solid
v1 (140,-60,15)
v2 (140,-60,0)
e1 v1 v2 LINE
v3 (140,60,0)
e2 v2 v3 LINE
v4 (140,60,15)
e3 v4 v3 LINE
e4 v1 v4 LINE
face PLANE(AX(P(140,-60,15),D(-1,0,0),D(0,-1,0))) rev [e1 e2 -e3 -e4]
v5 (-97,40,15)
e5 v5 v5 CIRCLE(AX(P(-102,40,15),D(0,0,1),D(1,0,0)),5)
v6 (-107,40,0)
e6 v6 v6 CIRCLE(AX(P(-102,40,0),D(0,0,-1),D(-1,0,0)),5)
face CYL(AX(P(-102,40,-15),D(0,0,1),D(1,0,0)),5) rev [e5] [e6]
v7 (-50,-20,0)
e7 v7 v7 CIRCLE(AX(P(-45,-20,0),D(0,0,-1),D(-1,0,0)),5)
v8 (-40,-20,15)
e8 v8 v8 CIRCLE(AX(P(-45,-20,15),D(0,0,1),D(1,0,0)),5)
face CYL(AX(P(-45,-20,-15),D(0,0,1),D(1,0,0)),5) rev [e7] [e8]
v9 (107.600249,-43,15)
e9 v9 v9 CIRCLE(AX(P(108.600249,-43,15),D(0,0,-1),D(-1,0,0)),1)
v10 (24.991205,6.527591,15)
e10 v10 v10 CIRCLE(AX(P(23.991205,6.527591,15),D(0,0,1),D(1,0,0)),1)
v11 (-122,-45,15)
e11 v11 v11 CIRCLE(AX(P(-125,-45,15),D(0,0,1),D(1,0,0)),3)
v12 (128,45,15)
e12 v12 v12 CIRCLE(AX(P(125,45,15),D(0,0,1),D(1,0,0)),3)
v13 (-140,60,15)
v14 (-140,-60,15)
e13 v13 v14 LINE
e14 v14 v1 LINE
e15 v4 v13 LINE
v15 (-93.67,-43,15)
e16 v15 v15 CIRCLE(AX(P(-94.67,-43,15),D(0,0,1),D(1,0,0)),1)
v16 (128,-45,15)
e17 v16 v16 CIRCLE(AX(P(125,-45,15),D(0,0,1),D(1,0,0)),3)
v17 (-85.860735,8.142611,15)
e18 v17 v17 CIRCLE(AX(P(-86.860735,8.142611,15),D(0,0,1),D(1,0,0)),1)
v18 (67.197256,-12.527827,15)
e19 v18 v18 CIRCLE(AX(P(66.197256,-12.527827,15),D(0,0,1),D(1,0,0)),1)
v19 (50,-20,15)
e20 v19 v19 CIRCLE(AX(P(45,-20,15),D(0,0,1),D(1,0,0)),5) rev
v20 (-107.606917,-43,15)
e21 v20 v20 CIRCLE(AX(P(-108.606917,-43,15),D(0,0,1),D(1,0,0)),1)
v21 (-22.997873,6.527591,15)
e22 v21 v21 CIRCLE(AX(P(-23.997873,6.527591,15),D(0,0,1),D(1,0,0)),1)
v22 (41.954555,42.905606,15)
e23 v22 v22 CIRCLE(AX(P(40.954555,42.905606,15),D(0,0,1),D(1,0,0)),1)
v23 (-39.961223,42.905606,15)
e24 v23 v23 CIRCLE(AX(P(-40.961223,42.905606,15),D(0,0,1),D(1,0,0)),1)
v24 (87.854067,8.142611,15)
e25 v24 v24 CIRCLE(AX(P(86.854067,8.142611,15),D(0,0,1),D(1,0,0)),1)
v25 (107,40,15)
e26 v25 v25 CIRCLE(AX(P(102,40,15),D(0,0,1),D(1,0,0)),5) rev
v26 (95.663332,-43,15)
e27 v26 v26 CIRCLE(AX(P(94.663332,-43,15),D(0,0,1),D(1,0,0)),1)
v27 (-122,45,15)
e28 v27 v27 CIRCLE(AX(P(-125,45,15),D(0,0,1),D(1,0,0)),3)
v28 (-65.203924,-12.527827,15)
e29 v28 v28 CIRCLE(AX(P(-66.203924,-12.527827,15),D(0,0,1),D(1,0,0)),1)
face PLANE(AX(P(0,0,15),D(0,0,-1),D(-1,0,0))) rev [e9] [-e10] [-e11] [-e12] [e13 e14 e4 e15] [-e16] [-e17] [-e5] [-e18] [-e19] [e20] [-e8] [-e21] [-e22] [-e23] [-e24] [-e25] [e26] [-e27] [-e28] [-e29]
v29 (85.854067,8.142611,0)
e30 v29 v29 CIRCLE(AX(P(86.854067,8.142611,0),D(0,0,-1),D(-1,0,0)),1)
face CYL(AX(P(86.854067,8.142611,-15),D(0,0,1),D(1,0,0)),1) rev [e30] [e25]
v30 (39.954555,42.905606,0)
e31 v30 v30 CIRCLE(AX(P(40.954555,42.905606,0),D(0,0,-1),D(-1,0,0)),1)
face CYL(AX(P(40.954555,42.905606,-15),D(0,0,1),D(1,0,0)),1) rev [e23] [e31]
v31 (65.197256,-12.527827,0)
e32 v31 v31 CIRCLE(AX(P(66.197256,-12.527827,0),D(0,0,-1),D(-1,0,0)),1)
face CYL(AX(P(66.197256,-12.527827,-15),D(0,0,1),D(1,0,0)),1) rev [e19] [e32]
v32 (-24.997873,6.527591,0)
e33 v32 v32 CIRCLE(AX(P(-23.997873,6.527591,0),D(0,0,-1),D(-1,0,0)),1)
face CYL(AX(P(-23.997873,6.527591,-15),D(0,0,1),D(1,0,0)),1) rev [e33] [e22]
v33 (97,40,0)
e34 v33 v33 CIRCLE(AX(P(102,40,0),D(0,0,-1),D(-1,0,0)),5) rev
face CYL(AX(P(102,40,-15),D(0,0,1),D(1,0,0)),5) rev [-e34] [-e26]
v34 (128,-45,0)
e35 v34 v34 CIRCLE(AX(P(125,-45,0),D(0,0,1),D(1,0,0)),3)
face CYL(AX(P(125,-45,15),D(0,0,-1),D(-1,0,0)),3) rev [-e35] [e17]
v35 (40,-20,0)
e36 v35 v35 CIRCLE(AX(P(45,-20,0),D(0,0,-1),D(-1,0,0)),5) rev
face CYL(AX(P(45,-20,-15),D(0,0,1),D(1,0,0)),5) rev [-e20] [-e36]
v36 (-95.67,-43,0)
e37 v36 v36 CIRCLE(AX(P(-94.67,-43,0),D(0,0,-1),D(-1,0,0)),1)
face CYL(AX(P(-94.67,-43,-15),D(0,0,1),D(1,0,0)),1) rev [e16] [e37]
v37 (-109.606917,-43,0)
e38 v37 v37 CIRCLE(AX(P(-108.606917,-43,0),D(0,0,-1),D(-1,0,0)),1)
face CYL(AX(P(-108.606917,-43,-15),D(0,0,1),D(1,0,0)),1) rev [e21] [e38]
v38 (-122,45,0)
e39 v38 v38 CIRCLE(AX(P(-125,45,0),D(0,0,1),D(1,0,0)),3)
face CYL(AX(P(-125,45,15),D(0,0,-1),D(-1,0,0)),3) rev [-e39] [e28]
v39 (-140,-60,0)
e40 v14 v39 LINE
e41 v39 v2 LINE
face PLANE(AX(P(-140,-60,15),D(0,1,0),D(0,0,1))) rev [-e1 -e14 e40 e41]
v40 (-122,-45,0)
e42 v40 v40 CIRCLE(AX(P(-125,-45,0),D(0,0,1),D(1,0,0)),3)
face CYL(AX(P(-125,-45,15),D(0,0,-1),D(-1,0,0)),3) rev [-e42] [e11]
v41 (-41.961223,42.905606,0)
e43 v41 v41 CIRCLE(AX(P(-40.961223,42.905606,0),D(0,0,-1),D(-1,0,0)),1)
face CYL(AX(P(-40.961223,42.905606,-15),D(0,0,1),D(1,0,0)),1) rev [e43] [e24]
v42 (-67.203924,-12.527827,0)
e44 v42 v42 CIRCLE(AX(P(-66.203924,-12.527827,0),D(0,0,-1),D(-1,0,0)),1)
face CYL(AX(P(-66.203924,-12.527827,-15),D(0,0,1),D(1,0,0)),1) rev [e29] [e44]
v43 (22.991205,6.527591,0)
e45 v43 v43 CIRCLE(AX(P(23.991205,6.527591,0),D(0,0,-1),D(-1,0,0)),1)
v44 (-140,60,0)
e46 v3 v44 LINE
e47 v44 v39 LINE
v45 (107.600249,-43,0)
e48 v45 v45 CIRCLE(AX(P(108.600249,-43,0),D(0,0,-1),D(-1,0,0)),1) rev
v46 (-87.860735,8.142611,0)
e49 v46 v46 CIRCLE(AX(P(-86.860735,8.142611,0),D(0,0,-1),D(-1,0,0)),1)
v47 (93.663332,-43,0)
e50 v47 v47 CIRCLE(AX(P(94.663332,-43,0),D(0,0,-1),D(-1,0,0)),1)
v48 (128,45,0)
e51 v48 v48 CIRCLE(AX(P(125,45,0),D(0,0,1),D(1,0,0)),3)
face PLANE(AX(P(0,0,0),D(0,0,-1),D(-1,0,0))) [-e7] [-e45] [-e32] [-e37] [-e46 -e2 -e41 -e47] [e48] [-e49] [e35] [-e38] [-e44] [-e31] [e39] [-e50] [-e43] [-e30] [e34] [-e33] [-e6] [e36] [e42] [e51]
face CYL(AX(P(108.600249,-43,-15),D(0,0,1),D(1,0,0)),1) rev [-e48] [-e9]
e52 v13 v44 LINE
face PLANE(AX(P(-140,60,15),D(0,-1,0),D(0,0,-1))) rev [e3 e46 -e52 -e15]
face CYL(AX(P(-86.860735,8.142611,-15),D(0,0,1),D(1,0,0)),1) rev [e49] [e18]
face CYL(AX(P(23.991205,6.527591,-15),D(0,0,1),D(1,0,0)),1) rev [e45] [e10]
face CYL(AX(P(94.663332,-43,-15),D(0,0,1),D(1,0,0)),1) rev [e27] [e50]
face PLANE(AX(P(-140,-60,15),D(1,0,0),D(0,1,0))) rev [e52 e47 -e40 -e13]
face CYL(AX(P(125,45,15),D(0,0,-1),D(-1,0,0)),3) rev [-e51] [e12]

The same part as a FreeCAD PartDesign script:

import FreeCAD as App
import Part
import Sketcher
from FreeCAD import Vector
Q = App.Units.Quantity

doc = App.newDocument("Part")
body = doc.addObject("PartDesign::Body", "Body")

sketch1 = doc.addObject("Sketcher::SketchObject", "Sketch")
body.addObject(sketch1)
sketch1.AttachmentSupport = (doc.XY_Plane, [""])
sketch1.MapMode = "FlatFace"
sketch1.addGeometry([
    Part.LineSegment(Vector(-140, 60, 0), Vector(-140, -60, 0)),
    Part.LineSegment(Vector(-140, -60, 0), Vector(140, -60, 0)),
    Part.LineSegment(Vector(140, -60, 0), Vector(140, 60, 0)),
    Part.LineSegment(Vector(140, 60, 0), Vector(-140, 60, 0)),
    Part.Circle(Vector(-125, -45, 0), Vector(0, 0, 1), 3),
    Part.Circle(Vector(125, -45, 0), Vector(0, 0, 1), 3),
    Part.Circle(Vector(-125, 45, 0), Vector(0, 0, 1), 3),
    Part.Circle(Vector(125, 45, 0), Vector(0, 0, 1), 3),
], False)
sketch1.addConstraint([
    Sketcher.Constraint("Coincident", 0, 2, 1, 1),
    Sketcher.Constraint("Coincident", 1, 2, 2, 1),
    Sketcher.Constraint("Coincident", 2, 2, 3, 1),
    Sketcher.Constraint("Coincident", 3, 2, 0, 1),
    Sketcher.Constraint("Vertical", 0),
    Sketcher.Constraint("Horizontal", 1),
    Sketcher.Constraint("Vertical", 2),
    Sketcher.Constraint("Horizontal", 3),
    Sketcher.Constraint("Equal", 4, 5),
    Sketcher.Constraint("Equal", 5, 6),
    Sketcher.Constraint("Equal", 6, 7),
    Sketcher.Constraint("Symmetric", 5, 3, 6, 3, -1, 1),
    Sketcher.Constraint("Symmetric", 4, 3, 7, 3, -1, 1),
    Sketcher.Constraint("Symmetric", 0, 2, 2, 2, -1, 1),
    Sketcher.Constraint("Symmetric", 4, 3, 5, 3, -2),
    Sketcher.Constraint("Diameter", 4, Q("6 mm")),
    Sketcher.Constraint("DistanceX", 1, 1, 1, 2, Q("280 mm")),
    Sketcher.Constraint("DistanceY", 0, 2, 0, 1, Q("120 mm")),
    Sketcher.Constraint("DistanceX", 4, 3, -1, 1, Q("125 mm")),
    Sketcher.Constraint("DistanceY", 4, 3, -1, 1, Q("45 mm")),
])
pad1 = doc.addObject("PartDesign::Pad", "Pad")
body.addObject(pad1)
pad1.Profile = sketch1
pad1.Length = 15

sketch2 = doc.addObject("Sketcher::SketchObject", "Sketch001")
body.addObject(sketch2)
sketch2.AttachmentSupport = (doc.XY_Plane, [""])
sketch2.MapMode = "FlatFace"
sketch2.AttachmentOffset = App.Placement(Vector(0, 0, 15), App.Rotation())
sketch2.addGeometry([
    Part.Circle(Vector(102, 40, 0), Vector(0, 0, 1), 5),
    Part.Circle(Vector(45, -20, 0), Vector(0, 0, 1), 5),
    Part.Circle(Vector(-45, -20, 0), Vector(0, 0, 1), 5),
    Part.Circle(Vector(-102, 40, 0), Vector(0, 0, 1), 5),
    Part.Circle(Vector(108.600249, -43, 0), Vector(0, 0, 1), 1),
    Part.Circle(Vector(94.663332, -43, 0), Vector(0, 0, 1), 1),
    Part.Circle(Vector(86.854067, 8.142611, 0), Vector(0, 0, 1), 1),
    Part.Circle(Vector(66.197256, -12.527827, 0), Vector(0, 0, 1), 1),
    Part.Circle(Vector(23.991205, 6.527591, 0), Vector(0, 0, 1), 1),
    Part.Circle(Vector(40.954555, 42.905606, 0), Vector(0, 0, 1), 1),
    Part.Circle(Vector(-23.997873, 6.527591, 0), Vector(0, 0, 1), 1),
    Part.Circle(Vector(-40.961223, 42.905606, 0), Vector(0, 0, 1), 1),
    Part.Circle(Vector(-86.860735, 8.142611, 0), Vector(0, 0, 1), 1),
    Part.Circle(Vector(-66.203924, -12.527827, 0), Vector(0, 0, 1), 1),
    Part.Circle(Vector(-108.606917, -43, 0), Vector(0, 0, 1), 1),
    Part.Circle(Vector(-94.67, -43, 0), Vector(0, 0, 1), 1),
], False)
sketch2.addConstraint([
    Sketcher.Constraint("Equal", 0, 1),
    Sketcher.Constraint("Equal", 1, 2),
    Sketcher.Constraint("Equal", 2, 3),
    Sketcher.Constraint("Equal", 4, 5),
    Sketcher.Constraint("Equal", 5, 6),
    Sketcher.Constraint("Equal", 6, 7),
    Sketcher.Constraint("Equal", 7, 8),
    Sketcher.Constraint("Equal", 8, 9),
    Sketcher.Constraint("Equal", 9, 10),
    Sketcher.Constraint("Equal", 10, 11),
    Sketcher.Constraint("Equal", 11, 12),
    Sketcher.Constraint("Equal", 12, 13),
    Sketcher.Constraint("Equal", 13, 14),
    Sketcher.Constraint("Equal", 14, 15),
    Sketcher.Constraint("Symmetric", 1, 3, 2, 3, -2),
    Sketcher.Constraint("Symmetric", 0, 3, 3, 3, -2),
    Sketcher.Constraint("Horizontal", 4, 3, 5, 3),
    Sketcher.Constraint("Horizontal", 8, 3, 10, 3),
    Sketcher.Constraint("Horizontal", 9, 3, 11, 3),
    Sketcher.Constraint("Horizontal", 6, 3, 12, 3),
    Sketcher.Constraint("Horizontal", 7, 3, 13, 3),
    Sketcher.Constraint("Horizontal", 5, 3, 14, 3),
    Sketcher.Constraint("Horizontal", 14, 3, 15, 3),
    Sketcher.Constraint("Diameter", 0, Q("10 mm")),
    Sketcher.Constraint("Diameter", 4, Q("2 mm")),
    Sketcher.Constraint("DistanceX", -1, 1, 0, 3, Q("102 mm")),
    Sketcher.Constraint("DistanceY", -1, 1, 0, 3, Q("40 mm")),
    Sketcher.Constraint("DistanceX", -1, 1, 1, 3, Q("45 mm")),
    Sketcher.Constraint("DistanceY", 1, 3, -1, 1, Q("20 mm")),
    Sketcher.Constraint("DistanceY", 4, 3, -1, 1, Q("43 mm")),
    Sketcher.Constraint("DistanceX", 15, 3, -1, 1, Q("94.67 mm")),
    Sketcher.Constraint("DistanceX", 9, 3, 7, 3, Q("25.242701 mm")),
    Sketcher.Constraint("DistanceX", 13, 3, 11, 3, Q("25.242701 mm")),
    Sketcher.Constraint("DistanceX", -1, 1, 4, 3, Q("108.600249 mm")),
    Sketcher.Constraint("DistanceX", -1, 1, 5, 3, Q("94.663332 mm")),
    Sketcher.Constraint("DistanceY", -1, 1, 6, 3, Q("8.142611 mm")),
    Sketcher.Constraint("DistanceY", -1, 1, 8, 3, Q("6.527591 mm")),
    Sketcher.Constraint("DistanceX", 6, 3, 4, 3, Q("21.746182 mm")),
    Sketcher.Constraint("DistanceX", 7, 3, 6, 3, Q("20.656812 mm")),
    Sketcher.Constraint("DistanceX", 8, 3, 7, 3, Q("42.206051 mm")),
    Sketcher.Constraint("DistanceX", 11, 3, 10, 3, Q("16.96335 mm")),
    Sketcher.Constraint("DistanceX", 12, 3, 8, 3, Q("110.85194 mm")),
    Sketcher.Constraint("DistanceX", 12, 3, 13, 3, Q("20.656812 mm")),
    Sketcher.Constraint("DistanceX", 14, 3, 12, 3, Q("21.746182 mm")),
    Sketcher.Constraint("DistanceY", 7, 3, -1, 1, Q("12.527827 mm")),
    Sketcher.Constraint("DistanceY", -1, 1, 9, 3, Q("42.905606 mm")),
])
pocket1 = doc.addObject("PartDesign::Pocket", "Pocket")
body.addObject(pocket1)
pocket1.Profile = sketch2
pocket1.Length = 30

doc.recompute()
